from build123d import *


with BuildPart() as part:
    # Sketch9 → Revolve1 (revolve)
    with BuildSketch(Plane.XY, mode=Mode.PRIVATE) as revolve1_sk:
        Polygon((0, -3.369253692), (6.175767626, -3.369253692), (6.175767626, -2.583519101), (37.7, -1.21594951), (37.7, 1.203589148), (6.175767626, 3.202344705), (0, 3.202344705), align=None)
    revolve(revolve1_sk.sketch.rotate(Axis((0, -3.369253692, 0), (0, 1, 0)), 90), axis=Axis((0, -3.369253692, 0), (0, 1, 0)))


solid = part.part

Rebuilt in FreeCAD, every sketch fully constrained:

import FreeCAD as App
import Part
import Sketcher
from FreeCAD import Vector


def add_polygon(sketch, points):
    """Adds a closed chain of lines whose ends are joined by coincident constraints."""
    first, n = sketch.GeometryCount, len(points)
    for a, b in zip(points, points[1:] + points[:1]):
        sketch.addGeometry(Part.LineSegment(App.Vector(*a, 0), App.Vector(*b, 0)), False)
    for i in range(n):
        sketch.addConstraint(Sketcher.Constraint("Coincident", first + i, 2, first + (i + 1) % n, 1))

doc = App.newDocument("Part")
body = doc.addObject("PartDesign::Body", "Body")

sketch1 = body.newObject("Sketcher::SketchObject", "Sketch")
sketch1.AttachmentSupport = (doc.getObject("XY_Plane"), [""])
sketch1.MapMode = "FlatFace"
add_polygon(sketch1, [(0, -3.4), (6.2, -3.4), (6.2, -2.6), (37.7, -1.2), (37.7, 1.2), (6.2, 3.2), (0, 3.2)])
sketch1.addConstraint([
    Sketcher.Constraint("Horizontal", 0),
    Sketcher.Constraint("Vertical", 1),
    Sketcher.Constraint("Vertical", 3),
    Sketcher.Constraint("Horizontal", 5),
    Sketcher.Constraint("Vertical", 6),
    Sketcher.Constraint("PointOnObject", 5, 2, -2),
    Sketcher.Constraint("Vertical", 1, 2, 4, 2),
    Sketcher.Constraint("DistanceX", -1, 1, 2, 2, 37.7),
    Sketcher.Constraint("DistanceY", 6, 2, 6, 1, 6.571598),
    Sketcher.Constraint("DistanceY", 3, 1, 3, 2, 2.419539),
    Sketcher.Constraint("DistanceX", 0, 1, 0, 2, 6.175768),
    Sketcher.Constraint("DistanceY", 1, 1, 1, 2, 0.785735),
    Sketcher.Constraint("DistanceY", 1, 2, -1, 1, 2.583519),
    Sketcher.Constraint("DistanceY", 2, 2, -1, 1, 1.21595),
])
revolution = body.newObject("PartDesign::Revolution", "Revolution")
revolution.Profile = sketch1
revolution.ReferenceAxis = (sketch1, ["V_Axis"])
revolution.Angle = 360

doc.recompute()
